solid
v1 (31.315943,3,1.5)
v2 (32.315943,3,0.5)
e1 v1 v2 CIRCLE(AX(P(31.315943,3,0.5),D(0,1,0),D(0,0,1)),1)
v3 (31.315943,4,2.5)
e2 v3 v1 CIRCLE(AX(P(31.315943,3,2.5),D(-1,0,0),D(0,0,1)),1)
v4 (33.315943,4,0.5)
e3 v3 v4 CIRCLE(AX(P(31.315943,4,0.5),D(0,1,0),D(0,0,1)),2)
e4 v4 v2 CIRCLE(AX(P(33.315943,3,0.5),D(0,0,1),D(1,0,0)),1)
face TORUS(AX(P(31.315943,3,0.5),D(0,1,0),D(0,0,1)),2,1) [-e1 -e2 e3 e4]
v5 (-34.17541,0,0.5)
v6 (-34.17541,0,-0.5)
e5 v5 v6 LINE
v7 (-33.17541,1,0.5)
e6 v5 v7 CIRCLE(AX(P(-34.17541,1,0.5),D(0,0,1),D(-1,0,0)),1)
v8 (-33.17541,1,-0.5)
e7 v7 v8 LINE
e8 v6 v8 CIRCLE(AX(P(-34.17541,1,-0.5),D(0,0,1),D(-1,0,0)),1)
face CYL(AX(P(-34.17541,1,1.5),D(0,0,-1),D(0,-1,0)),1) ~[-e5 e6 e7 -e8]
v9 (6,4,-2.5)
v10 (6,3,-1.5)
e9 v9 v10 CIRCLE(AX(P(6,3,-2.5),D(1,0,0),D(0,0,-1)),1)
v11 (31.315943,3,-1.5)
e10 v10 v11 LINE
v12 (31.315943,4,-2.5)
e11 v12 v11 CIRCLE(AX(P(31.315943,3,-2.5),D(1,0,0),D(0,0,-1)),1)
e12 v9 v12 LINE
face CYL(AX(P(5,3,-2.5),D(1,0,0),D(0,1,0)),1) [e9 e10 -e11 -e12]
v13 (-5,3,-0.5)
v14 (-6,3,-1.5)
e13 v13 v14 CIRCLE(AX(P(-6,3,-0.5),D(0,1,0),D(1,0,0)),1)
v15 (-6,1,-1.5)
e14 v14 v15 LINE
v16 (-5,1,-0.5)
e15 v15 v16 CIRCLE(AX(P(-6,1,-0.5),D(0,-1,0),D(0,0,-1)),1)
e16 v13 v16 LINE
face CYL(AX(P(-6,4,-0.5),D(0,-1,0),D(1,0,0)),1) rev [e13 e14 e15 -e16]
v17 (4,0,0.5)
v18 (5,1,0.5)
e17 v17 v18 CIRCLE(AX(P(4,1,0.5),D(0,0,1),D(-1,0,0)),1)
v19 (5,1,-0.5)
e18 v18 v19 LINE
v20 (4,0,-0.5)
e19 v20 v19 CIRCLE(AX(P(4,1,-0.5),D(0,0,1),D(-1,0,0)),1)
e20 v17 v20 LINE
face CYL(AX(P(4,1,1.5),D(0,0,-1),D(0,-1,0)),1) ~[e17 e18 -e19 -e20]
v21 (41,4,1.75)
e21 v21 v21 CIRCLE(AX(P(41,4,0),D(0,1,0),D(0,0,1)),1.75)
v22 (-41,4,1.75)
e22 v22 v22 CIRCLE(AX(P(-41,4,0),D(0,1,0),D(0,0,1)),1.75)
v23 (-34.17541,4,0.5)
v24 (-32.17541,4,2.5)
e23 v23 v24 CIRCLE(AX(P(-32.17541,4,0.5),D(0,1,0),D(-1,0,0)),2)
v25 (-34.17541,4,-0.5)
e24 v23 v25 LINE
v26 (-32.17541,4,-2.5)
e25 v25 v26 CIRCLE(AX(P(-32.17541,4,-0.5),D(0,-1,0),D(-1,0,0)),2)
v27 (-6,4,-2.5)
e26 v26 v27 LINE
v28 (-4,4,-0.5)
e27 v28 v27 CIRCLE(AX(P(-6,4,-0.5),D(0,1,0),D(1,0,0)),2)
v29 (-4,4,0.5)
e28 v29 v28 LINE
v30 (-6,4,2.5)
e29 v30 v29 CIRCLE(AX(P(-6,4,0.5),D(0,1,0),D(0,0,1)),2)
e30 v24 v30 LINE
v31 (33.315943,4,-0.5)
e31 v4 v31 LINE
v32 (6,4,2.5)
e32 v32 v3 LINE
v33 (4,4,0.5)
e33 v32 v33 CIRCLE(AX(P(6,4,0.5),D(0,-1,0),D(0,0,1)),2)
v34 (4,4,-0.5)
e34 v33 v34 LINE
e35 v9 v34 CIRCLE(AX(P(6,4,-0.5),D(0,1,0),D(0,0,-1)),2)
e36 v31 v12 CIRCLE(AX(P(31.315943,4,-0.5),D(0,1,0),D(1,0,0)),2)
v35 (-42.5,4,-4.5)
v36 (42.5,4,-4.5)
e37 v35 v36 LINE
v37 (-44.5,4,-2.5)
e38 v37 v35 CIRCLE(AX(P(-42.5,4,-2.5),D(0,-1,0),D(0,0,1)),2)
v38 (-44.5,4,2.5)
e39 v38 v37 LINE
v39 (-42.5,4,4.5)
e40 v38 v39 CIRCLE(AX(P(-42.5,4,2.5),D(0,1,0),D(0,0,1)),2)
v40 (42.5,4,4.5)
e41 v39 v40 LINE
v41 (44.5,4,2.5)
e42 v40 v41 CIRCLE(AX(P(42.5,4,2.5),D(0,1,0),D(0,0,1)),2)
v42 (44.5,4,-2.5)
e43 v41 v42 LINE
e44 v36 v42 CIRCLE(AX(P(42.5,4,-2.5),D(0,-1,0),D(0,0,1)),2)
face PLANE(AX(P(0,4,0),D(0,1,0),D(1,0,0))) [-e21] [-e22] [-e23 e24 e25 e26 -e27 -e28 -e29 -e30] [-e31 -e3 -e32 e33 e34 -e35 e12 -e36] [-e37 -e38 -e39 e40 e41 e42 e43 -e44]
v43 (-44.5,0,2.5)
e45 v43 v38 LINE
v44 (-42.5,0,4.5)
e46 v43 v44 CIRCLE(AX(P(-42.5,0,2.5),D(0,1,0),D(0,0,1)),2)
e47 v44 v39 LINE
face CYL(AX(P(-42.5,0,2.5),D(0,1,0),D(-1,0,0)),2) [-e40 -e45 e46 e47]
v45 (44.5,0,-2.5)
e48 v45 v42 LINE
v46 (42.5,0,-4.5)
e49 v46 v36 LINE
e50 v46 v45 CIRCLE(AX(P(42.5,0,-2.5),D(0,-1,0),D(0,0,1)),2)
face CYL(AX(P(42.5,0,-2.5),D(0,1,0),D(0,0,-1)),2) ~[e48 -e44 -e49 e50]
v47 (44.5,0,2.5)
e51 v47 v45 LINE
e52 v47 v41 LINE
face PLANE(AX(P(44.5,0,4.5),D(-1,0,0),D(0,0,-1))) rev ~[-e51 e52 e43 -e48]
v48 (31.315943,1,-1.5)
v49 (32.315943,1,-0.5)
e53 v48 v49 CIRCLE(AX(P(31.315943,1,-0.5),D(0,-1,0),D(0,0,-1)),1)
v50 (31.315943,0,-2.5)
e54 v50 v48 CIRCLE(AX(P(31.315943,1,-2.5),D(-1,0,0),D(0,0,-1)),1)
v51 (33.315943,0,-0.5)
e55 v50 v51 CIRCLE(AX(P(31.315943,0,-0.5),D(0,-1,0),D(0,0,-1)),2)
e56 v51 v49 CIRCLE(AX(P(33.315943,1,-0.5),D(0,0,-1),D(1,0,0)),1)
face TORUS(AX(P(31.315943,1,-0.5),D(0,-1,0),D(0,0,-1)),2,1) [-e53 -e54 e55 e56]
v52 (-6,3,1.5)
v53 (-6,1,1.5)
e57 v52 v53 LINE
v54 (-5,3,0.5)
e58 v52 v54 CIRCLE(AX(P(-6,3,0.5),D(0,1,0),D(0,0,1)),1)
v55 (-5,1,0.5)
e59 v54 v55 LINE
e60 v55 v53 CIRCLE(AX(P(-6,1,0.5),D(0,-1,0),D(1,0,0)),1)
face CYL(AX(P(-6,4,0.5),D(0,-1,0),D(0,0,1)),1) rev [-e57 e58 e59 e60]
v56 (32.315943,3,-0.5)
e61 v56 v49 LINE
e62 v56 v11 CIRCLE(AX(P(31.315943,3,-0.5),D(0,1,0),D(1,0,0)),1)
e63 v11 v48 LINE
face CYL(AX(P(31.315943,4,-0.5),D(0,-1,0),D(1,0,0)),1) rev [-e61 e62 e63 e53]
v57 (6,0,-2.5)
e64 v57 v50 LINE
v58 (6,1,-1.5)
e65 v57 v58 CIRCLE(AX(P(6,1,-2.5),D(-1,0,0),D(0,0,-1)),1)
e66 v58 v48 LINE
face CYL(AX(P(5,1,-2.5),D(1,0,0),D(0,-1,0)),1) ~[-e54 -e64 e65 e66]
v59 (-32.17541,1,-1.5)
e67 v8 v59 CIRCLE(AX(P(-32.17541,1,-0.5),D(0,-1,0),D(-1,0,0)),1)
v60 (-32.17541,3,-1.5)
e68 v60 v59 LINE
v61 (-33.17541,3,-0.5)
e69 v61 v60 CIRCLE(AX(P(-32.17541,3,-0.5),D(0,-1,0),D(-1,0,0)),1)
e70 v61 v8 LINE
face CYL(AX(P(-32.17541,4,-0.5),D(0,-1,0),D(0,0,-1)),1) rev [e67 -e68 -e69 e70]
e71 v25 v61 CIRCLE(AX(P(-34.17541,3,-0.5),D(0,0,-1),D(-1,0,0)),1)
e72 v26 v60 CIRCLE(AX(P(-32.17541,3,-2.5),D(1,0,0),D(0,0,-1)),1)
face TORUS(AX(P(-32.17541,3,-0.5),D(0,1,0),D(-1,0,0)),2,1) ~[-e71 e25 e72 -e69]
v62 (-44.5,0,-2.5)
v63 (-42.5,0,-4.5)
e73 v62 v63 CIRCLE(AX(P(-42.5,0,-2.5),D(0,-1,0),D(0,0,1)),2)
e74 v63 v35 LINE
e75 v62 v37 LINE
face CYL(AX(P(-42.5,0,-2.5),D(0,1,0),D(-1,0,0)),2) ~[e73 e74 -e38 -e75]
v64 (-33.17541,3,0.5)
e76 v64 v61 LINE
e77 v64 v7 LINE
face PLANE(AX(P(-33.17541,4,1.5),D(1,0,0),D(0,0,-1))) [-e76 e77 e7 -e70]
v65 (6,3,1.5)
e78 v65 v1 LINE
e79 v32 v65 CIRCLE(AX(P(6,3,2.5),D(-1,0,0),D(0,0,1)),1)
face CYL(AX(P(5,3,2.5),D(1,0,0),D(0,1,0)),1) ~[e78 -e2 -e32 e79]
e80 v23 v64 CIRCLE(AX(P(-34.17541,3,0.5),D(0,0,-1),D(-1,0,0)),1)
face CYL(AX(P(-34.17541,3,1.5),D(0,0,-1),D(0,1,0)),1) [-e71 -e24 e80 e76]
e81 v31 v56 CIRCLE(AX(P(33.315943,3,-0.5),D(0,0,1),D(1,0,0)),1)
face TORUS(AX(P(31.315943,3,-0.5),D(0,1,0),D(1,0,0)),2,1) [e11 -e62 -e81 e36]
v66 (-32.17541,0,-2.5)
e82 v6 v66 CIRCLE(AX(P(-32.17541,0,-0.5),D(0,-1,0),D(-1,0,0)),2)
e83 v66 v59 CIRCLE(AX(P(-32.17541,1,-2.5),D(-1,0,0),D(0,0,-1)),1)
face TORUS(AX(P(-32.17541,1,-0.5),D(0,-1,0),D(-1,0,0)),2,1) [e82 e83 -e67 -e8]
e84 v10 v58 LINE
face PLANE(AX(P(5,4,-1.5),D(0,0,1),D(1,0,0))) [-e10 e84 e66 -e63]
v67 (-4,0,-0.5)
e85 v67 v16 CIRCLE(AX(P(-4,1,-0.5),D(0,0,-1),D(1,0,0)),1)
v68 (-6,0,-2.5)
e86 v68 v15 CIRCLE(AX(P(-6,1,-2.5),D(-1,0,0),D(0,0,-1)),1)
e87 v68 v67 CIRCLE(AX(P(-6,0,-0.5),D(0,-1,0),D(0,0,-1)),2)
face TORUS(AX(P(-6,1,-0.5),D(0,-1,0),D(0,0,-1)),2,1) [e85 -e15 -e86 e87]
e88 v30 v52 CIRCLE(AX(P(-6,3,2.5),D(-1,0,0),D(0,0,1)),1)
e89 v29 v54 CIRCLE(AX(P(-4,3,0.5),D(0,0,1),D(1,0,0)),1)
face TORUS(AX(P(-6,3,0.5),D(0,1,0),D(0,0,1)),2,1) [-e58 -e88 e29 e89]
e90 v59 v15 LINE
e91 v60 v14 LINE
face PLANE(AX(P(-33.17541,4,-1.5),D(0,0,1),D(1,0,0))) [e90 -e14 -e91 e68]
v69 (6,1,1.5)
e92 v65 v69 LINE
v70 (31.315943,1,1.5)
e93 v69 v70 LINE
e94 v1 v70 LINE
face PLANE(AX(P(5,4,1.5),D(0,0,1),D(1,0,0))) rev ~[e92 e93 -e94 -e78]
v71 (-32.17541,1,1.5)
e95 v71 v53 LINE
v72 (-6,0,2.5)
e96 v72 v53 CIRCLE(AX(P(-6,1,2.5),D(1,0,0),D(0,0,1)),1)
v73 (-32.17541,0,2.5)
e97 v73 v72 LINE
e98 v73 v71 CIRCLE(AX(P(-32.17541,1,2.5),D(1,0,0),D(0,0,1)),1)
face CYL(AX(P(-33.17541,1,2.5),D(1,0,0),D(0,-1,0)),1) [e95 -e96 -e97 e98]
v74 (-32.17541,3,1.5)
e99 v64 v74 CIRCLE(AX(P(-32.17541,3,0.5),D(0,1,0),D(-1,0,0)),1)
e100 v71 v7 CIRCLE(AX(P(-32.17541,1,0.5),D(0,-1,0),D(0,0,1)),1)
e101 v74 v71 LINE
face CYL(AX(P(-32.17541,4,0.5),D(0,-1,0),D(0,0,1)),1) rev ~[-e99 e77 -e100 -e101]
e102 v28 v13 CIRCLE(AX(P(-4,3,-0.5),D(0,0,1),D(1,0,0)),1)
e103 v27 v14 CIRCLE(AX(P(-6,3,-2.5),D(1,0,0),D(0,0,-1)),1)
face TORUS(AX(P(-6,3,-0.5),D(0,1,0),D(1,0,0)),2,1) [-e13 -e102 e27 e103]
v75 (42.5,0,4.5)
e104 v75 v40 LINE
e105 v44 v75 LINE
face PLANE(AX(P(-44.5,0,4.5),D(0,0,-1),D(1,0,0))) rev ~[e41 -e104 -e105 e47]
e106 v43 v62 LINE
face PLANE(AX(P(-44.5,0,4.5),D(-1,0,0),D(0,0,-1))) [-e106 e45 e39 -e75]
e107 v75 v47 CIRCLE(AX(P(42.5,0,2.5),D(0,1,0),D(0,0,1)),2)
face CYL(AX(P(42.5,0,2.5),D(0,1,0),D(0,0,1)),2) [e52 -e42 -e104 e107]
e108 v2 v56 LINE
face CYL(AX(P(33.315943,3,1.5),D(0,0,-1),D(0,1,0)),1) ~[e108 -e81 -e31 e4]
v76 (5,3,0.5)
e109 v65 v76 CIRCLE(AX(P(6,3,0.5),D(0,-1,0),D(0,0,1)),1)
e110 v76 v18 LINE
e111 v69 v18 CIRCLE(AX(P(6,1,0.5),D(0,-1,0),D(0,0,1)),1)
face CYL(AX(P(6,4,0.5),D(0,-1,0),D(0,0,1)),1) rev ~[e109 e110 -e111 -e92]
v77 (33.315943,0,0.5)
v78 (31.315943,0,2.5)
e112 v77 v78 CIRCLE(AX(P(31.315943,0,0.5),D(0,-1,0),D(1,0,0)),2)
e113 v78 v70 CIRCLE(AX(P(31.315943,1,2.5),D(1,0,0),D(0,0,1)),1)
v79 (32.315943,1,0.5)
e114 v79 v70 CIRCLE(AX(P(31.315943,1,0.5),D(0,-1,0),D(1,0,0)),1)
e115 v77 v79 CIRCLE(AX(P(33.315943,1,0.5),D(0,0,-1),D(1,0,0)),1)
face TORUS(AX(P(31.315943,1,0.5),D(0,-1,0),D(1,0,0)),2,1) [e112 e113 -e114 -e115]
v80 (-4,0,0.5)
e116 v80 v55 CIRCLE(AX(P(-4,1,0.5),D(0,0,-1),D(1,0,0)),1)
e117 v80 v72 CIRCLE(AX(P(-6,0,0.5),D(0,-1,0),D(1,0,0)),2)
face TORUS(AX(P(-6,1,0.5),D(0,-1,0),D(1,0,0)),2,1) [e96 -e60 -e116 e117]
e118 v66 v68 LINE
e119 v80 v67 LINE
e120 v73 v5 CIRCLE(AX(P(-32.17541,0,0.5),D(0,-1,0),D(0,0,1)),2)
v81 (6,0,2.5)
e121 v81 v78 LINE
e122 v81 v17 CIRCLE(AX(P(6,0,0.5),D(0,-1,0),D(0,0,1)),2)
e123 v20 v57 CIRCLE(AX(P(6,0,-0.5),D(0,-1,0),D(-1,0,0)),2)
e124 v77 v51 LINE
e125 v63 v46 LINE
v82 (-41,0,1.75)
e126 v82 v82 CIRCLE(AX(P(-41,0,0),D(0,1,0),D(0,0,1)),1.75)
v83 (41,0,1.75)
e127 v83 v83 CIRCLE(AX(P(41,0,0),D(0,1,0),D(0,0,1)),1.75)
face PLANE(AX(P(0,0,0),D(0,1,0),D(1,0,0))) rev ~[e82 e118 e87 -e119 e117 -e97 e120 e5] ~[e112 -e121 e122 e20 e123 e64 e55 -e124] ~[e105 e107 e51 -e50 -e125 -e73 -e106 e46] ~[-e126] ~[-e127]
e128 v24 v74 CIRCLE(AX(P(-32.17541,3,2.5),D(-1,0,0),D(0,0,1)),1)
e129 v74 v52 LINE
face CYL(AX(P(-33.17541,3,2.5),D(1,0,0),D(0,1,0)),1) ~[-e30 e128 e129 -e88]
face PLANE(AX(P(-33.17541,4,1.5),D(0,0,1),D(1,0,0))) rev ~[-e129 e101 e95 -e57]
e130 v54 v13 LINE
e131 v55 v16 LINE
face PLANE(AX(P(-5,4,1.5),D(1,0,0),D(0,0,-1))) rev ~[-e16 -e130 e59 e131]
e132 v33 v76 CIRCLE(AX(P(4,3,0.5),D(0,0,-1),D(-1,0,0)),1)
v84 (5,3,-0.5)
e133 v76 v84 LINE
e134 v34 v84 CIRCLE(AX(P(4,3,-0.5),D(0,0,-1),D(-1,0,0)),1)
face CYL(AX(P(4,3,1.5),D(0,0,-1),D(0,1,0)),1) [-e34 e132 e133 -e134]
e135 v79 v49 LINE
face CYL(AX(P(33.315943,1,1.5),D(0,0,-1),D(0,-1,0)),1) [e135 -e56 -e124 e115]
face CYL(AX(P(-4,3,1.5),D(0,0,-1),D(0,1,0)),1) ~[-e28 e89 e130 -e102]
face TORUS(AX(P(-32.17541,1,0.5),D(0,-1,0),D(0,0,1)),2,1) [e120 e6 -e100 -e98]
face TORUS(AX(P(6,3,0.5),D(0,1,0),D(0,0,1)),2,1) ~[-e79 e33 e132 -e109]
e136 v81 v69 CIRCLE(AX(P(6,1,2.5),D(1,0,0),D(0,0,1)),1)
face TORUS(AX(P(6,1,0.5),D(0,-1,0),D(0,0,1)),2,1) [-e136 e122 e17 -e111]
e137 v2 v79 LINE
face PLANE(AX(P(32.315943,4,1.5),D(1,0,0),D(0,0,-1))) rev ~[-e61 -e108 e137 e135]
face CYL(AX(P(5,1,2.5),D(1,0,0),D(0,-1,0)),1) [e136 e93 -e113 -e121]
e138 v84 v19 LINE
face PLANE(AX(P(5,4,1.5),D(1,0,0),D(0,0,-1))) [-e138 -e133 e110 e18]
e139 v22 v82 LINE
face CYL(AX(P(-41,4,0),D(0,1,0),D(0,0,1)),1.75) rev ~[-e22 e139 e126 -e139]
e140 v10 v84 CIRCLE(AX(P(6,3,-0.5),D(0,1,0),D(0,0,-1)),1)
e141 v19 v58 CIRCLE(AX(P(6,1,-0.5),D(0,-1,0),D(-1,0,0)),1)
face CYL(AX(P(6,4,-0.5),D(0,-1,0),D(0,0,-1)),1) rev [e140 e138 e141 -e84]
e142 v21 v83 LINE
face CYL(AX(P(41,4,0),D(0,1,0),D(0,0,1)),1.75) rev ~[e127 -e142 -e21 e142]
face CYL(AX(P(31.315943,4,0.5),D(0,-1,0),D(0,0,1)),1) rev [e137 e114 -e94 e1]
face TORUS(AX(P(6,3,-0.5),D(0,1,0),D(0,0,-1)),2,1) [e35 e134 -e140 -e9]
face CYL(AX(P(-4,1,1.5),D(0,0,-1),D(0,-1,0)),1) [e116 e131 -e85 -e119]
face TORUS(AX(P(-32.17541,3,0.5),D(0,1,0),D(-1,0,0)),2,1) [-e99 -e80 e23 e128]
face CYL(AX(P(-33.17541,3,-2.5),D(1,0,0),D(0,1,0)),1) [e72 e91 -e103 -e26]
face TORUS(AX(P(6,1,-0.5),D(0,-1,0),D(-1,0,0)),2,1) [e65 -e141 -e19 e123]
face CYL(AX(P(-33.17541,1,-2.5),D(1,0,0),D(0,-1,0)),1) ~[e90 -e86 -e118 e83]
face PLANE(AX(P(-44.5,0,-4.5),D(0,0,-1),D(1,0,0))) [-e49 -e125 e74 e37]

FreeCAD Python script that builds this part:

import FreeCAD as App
import Part
import Sketcher
from FreeCAD import Vector
Q = App.Units.Quantity


def edges_at(feature, points):
    """Names of the edges that pass closest to the given points."""
    edges = feature.Shape.Edges
    near = lambda p: min(range(len(edges)), key=lambda i: edges[i].distToShape(Part.Vertex(*p))[0])
    return sorted({f"Edge{near(p) + 1}" for p in points})


def add_polygon(sketch, points):
    """Adds a closed chain of lines whose ends are joined by coincident constraints."""
    first, n = sketch.GeometryCount, len(points)
    for a, b in zip(points, points[1:] + points[:1]):
        sketch.addGeometry(Part.LineSegment(App.Vector(*a, 0), App.Vector(*b, 0)), False)
    for i in range(n):
        sketch.addConstraint(Sketcher.Constraint("Coincident", first + i, 2, first + (i + 1) % n, 1))

doc = App.newDocument("Part")
params = doc.addObject("Spreadsheet::Sheet", "Params")
for row, (alias, value) in enumerate([
    ("sketch1_width", "89 mm"),
    ("sketch1_height", "9 mm"),
    ("pad1_length", "4 mm"),
    ("sketch2_diameter", "3.5 mm"),
    ("pocket1_length", "4 mm"),
    ("fillet_radius", "2 mm"),
    ("sketch3_height", "3 mm"),
    ("fillet2_radius", "1 mm"),
], start=1):
    params.set(f"A{row}", alias)
    params.set(f"B{row}", "=" + value)
    params.setAlias(f"B{row}", alias)

body = doc.addObject("PartDesign::Body", "Body")

# Sketch on XZ plane
sketch1 = doc.addObject("Sketcher::SketchObject", "Sketch")
body.addObject(sketch1)
sketch1.AttachmentSupport = (doc.XZ_Plane, [""])
sketch1.MapMode = "FlatFace"
add_polygon(sketch1, [(-44.5, -4.5), (-44.5, 4.5), (44.5, 4.5), (44.5, -4.5)])  # lines 0-3
sketch1.addConstraint(Sketcher.Constraint("Vertical", 0))
sketch1.addConstraint(Sketcher.Constraint("Horizontal", 1))
sketch1.addConstraint(Sketcher.Constraint("Vertical", 2))
sketch1.addConstraint(Sketcher.Constraint("Horizontal", 3))
sketch1.addConstraint(Sketcher.Constraint("Symmetric", 0, 2, 2, 2, -1, 1))
sketch1.addConstraint(Sketcher.Constraint("DistanceX", 1, 1, 1, 2, Q("89 mm")))
sketch1.addConstraint(Sketcher.Constraint("DistanceY", 0, 1, 0, 2, Q("9 mm")))
sketch1.setExpression("Constraints[9]", "Params.sketch1_width")
sketch1.setExpression("Constraints[10]", "Params.sketch1_height")
pad1 = doc.addObject("PartDesign::Pad", "Pad")
body.addObject(pad1)
pad1.Profile = sketch1
pad1.setExpression("Length", "Params.pad1_length")
pad1.Reversed = True

# Sketch on XZ plane
sketch2 = doc.addObject("Sketcher::SketchObject", "Sketch001")
body.addObject(sketch2)
sketch2.AttachmentSupport = (doc.XZ_Plane, [""])
sketch2.MapMode = "FlatFace"
sketch2.AttachmentOffset = App.Placement(Vector(0, 0, -4), App.Rotation())
sketch2.addGeometry(Part.Circle(Vector(-41, 0, 0), Vector(0, 0, 1), 1.75), False)
sketch2.addGeometry(Part.Circle(Vector(41, 0, 0), Vector(0, 0, 1), 1.75), False)
sketch2.addConstraint(Sketcher.Constraint("Equal", 0, 1))
sketch2.addConstraint(Sketcher.Constraint("Symmetric", 0, 3, 1, 3, -1, 1))
sketch2.addConstraint(Sketcher.Constraint("PointOnObject", 0, 3, -1))
sketch2.addConstraint(Sketcher.Constraint("Diameter", 0, Q("3.5 mm")))
sketch2.addConstraint(Sketcher.Constraint("DistanceX", 0, 3, -1, 1, Q("41 mm")))
sketch2.setExpression("Constraints[3]", "Params.sketch2_diameter")
pocket1 = doc.addObject("PartDesign::Pocket", "Pocket")
body.addObject(pocket1)
pocket1.Profile = sketch2
pocket1.setExpression("Length", "Params.pocket1_length")
pocket1.Reversed = True
doc.recompute()

fillet = doc.addObject("PartDesign::Fillet", "Fillet")
body.addObject(fillet)
fillet.Base = (pocket1, edges_at(pocket1, [
    (-44.5, 2, -4.5),
    (44.5, 2, -4.5),
    (44.5, 2, 4.5),
    (-44.5, 2, 4.5),
]))
fillet.setExpression("Radius", "Params.fillet_radius")

# Sketch on XZ plane
sketch3 = doc.addObject("Sketcher::SketchObject", "Sketch002")
body.addObject(sketch3)
sketch3.AttachmentSupport = (doc.XZ_Plane, [""])
sketch3.MapMode = "FlatFace"
sketch3.AttachmentOffset = App.Placement(Vector(0, 0, -4), App.Rotation())
add_polygon(sketch3, [(-33.17541, -1.5), (-33.17541, 1.5), (-5, 1.5), (-5, -1.5)])  # lines 0-3
add_polygon(sketch3, [(5, -1.5), (5, 1.5), (32.315943, 1.5), (32.315943, -1.5)])  # lines 4-7
sketch3.addConstraint(Sketcher.Constraint("Vertical", 0))
sketch3.addConstraint(Sketcher.Constraint("Horizontal", 1))
sketch3.addConstraint(Sketcher.Constraint("Vertical", 2))
sketch3.addConstraint(Sketcher.Constraint("Horizontal", 3))
sketch3.addConstraint(Sketcher.Constraint("Vertical", 4))
sketch3.addConstraint(Sketcher.Constraint("Horizontal", 5))
sketch3.addConstraint(Sketcher.Constraint("Vertical", 6))
sketch3.addConstraint(Sketcher.Constraint("Horizontal", 7))
sketch3.addConstraint(Sketcher.Constraint("Symmetric", 2, 2, 4, 2, -1, 1))
sketch3.addConstraint(Sketcher.Constraint("Horizontal", 1, 2, 4, 2))
sketch3.addConstraint(Sketcher.Constraint("Horizontal", 3, 2, 6, 2))
sketch3.addConstraint(Sketcher.Constraint("DistanceY", 0, 1, 0, 2, Q("3 mm")))
sketch3.addConstraint(Sketcher.Constraint("DistanceX", 1, 2, -1, 1, Q("5 mm")))
sketch3.addConstraint(Sketcher.Constraint("DistanceX", 1, 1, 1, 2, Q("28.17541 mm")))
sketch3.addConstraint(Sketcher.Constraint("DistanceX", 5, 1, 5, 2, Q("27.315943 mm")))
sketch3.setExpression("Constraints[19]", "Params.sketch3_height")
pocket2 = doc.addObject("PartDesign::Pocket", "Pocket001")
body.addObject(pocket2)
pocket2.Profile = sketch3
pocket2.Type = "ThroughAll"
pocket2.Reversed = True
doc.recompute()

fillet2 = doc.addObject("PartDesign::Fillet", "Fillet001")
body.addObject(fillet2)
fillet2.Base = (pocket2, edges_at(pocket2, [
    (-33.175, 0, 0),
    (-33.175, 2, 1.5),
    (-19.088, 0, -1.5),
    (-33.175, 2, -1.5),
    (-5, 0, 0),
    (-5, 2, -1.5),
    (-19.088, 0, 1.5),
    (-5, 2, 1.5),
    (-33.175, 4, 0),
    (-19.088, 4, 1.5),
    (-5, 4, 0),
    (-19.088, 4, -1.5),
    (18.658, 0, 1.5),
    (32.316, 2, 1.5),
    (5, 0, 0),
    (5, 2, 1.5),
    (18.658, 0, -1.5),
    (5, 2, -1.5),
    (32.316, 0, 0),
    (32.316, 2, -1.5),
    (18.658, 4, 1.5),
    (32.316, 4, 0),
    (18.658, 4, -1.5),
    (5, 4, 0),
]))
fillet2.setExpression("Radius", "Params.fillet2_radius")

doc.recompute()
